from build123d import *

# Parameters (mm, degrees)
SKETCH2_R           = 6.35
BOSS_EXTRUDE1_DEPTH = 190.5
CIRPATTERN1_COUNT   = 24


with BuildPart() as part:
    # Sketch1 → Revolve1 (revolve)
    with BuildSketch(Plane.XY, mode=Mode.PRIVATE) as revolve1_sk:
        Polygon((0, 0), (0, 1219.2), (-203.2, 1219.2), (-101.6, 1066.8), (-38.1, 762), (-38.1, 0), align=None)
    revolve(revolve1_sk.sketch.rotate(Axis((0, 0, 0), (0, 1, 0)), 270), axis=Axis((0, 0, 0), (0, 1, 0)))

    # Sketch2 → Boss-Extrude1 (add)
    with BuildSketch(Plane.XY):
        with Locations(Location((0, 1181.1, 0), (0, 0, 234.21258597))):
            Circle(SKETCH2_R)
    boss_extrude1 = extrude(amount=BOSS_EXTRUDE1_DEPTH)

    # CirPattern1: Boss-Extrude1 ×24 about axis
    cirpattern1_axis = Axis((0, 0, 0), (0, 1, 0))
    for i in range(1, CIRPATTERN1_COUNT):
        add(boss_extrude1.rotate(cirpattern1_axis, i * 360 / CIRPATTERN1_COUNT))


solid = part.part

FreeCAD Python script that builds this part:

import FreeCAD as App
import Part
import Sketcher
from FreeCAD import Vector
Q = App.Units.Quantity


def add_polygon(sketch, points):
    """Adds a closed chain of lines whose ends are joined by coincident constraints."""
    first, n = sketch.GeometryCount, len(points)
    for a, b in zip(points, points[1:] + points[:1]):
        sketch.addGeometry(Part.LineSegment(App.Vector(*a, 0), App.Vector(*b, 0)), False)
    for i in range(n):
        sketch.addConstraint(Sketcher.Constraint("Coincident", first + i, 2, first + (i + 1) % n, 1))

doc = App.newDocument("Part")
body = doc.addObject("PartDesign::Body", "Body")

sketch1 = body.newObject("Sketcher::SketchObject", "Sketch")
sketch1.AttachmentSupport = (doc.getObject("XY_Plane"), [""])
sketch1.MapMode = "FlatFace"
add_polygon(sketch1, [(0, 0), (0, 1219.2), (-203.2, 1219.2), (-101.6, 1066.8), (-38.1, 762), (-38.1, 0)])
sketch1.addConstraint([
    Sketcher.Constraint("Vertical", 0),
    Sketcher.Constraint("Horizontal", 1),
    Sketcher.Constraint("Vertical", 4),
    Sketcher.Constraint("Horizontal", 5),
    Sketcher.Constraint("Coincident", 5, 2, -1, 1),
    Sketcher.Constraint("DistanceX", 1, 2, 1, 1, Q("8 in")),
    Sketcher.Constraint("DistanceY", 0, 1, 0, 2, Q("48 in")),
    Sketcher.Constraint("DistanceY", 4, 2, 4, 1, Q("30 in")),
    Sketcher.Constraint("DistanceX", 5, 1, 5, 2, Q("1.5 in")),
    Sketcher.Constraint("DistanceX", 2, 2, -1, 1, Q("4 in")),
    Sketcher.Constraint("DistanceY", -1, 1, 2, 2, Q("42 in")),
])
revolution = body.newObject("PartDesign::Revolution", "Revolution")
revolution.Profile = sketch1
revolution.ReferenceAxis = (sketch1, ["V_Axis"])
revolution.Angle = 360

sketch2 = body.newObject("Sketcher::SketchObject", "Sketch001")
sketch2.AttachmentSupport = (doc.getObject("XY_Plane"), [""])
sketch2.MapMode = "FlatFace"
sketch2.addGeometry(Part.Circle(Vector(0, 1181.1, 0), Vector(0, 0, 1), 6.35), False)
sketch2.addConstraint([
    Sketcher.Constraint("PointOnObject", 0, 3, -2),
    Sketcher.Constraint("Diameter", 0, Q("0.5 in")),
    Sketcher.Constraint("DistanceY", -1, 1, 0, 3, Q("46.5 in")),
])
pad1 = body.newObject("PartDesign::Pad", "Pad")
pad1.Profile = sketch2
pad1.Length = Q("7.5 in")
doc.recompute()

polarpattern = body.newObject("PartDesign::PolarPattern", "PolarPattern")
polarpattern.Originals = [pad1]
polarpattern.Axis = (doc.getObject("Y_Axis"), [""])
polarpattern.Angle = 360
polarpattern.Occurrences = 24
body.Tip = polarpattern

doc.recompute()
